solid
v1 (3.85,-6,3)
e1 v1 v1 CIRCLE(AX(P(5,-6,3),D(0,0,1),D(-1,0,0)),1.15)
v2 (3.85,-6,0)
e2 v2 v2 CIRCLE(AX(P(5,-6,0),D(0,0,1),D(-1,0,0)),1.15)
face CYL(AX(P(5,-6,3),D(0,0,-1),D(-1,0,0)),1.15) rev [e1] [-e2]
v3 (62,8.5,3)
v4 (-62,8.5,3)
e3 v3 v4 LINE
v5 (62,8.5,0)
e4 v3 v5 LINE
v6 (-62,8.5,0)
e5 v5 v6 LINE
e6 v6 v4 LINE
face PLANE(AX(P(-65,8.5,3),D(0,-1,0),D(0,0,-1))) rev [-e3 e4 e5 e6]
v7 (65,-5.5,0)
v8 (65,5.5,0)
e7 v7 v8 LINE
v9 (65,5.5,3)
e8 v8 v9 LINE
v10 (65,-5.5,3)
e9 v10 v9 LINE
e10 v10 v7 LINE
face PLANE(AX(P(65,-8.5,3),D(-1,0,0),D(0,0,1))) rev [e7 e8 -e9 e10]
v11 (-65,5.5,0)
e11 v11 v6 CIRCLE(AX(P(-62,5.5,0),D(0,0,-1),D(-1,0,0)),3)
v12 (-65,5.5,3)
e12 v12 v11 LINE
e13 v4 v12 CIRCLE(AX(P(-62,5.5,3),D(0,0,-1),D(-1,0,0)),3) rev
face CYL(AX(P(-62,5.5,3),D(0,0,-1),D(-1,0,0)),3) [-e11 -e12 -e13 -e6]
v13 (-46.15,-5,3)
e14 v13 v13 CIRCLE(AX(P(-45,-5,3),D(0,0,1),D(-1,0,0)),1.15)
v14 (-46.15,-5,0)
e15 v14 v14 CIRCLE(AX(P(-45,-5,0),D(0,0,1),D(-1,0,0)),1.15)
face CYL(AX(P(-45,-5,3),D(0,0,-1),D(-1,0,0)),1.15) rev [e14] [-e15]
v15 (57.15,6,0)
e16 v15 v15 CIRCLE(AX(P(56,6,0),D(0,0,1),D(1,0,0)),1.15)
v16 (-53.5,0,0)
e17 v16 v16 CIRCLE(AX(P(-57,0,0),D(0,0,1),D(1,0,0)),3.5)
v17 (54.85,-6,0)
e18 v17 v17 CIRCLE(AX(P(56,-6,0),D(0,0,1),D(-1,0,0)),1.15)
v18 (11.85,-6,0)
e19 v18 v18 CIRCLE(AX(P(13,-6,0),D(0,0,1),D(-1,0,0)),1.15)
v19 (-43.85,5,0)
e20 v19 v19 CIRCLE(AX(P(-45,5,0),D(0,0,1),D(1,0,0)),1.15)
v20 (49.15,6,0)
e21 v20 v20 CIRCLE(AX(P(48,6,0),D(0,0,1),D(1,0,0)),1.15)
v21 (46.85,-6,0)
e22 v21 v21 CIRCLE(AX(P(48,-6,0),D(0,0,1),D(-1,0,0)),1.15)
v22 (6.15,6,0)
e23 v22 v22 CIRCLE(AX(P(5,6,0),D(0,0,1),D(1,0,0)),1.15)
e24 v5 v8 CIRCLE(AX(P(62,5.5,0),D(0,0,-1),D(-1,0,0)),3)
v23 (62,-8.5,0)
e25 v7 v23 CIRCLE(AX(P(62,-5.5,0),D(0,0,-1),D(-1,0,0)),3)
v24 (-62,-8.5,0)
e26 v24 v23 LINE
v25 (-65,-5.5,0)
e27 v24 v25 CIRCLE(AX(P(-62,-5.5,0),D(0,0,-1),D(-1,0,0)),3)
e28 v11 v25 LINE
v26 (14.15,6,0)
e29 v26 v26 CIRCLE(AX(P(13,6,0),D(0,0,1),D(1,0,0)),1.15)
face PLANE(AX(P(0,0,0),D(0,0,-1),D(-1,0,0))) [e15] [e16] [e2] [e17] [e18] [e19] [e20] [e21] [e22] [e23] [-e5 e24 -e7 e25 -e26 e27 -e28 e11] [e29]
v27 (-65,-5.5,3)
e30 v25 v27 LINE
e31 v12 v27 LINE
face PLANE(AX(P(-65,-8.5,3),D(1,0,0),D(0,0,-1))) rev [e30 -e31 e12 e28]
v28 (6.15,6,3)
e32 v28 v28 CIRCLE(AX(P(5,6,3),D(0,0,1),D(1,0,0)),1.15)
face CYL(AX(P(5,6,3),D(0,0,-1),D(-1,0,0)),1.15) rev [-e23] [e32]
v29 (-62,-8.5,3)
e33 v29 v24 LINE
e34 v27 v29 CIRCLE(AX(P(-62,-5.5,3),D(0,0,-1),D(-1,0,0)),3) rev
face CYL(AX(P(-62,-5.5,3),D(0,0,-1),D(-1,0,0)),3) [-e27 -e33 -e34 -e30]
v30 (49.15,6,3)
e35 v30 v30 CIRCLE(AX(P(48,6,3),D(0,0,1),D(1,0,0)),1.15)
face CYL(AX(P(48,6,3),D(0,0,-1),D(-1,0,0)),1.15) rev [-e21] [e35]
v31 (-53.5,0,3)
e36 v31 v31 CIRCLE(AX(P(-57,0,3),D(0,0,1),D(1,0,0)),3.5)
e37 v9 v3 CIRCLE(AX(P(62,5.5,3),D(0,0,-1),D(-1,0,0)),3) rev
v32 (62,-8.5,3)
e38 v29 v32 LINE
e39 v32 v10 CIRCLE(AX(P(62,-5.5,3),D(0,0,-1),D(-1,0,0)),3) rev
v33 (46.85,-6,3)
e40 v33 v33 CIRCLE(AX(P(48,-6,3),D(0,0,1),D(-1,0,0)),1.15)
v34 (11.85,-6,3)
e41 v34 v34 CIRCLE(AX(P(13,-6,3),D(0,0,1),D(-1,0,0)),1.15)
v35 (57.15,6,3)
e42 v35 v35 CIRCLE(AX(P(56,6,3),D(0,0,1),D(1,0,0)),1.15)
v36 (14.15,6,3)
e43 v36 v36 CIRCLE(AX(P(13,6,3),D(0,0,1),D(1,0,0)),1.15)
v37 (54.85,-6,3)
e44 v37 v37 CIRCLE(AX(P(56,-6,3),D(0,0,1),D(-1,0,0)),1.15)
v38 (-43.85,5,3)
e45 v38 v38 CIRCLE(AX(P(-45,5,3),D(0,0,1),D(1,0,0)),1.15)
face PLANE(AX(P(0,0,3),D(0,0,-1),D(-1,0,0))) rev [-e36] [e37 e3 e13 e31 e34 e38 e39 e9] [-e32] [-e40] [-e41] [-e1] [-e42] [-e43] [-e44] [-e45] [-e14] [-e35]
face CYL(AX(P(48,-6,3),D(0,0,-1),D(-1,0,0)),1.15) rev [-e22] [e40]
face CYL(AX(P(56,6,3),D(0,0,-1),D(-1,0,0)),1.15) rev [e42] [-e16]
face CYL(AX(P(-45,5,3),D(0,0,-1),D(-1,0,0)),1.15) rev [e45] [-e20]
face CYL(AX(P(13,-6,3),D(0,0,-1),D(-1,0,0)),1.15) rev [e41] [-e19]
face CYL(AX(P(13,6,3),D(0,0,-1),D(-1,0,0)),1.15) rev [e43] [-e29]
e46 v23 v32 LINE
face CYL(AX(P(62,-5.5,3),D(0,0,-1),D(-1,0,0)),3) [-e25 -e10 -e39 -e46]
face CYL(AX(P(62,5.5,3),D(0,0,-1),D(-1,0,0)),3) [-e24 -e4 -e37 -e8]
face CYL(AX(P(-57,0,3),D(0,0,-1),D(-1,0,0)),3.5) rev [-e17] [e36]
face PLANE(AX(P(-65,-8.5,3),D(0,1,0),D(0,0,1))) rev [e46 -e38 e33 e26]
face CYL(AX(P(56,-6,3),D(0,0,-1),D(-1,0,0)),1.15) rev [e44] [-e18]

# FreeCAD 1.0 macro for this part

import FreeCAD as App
import Part
import Sketcher
from FreeCAD import Vector
Q = App.Units.Quantity


def edges_at(feature, points):
    """Names of the edges that pass closest to the given points."""
    edges = feature.Shape.Edges
    near = lambda p: min(range(len(edges)), key=lambda i: edges[i].distToShape(Part.Vertex(*p))[0])
    return sorted({f"Edge{near(p) + 1}" for p in points})

doc = App.newDocument("Part")
body = doc.addObject("PartDesign::Body", "Body")

# Sketch on XY plane
sketch1 = doc.addObject("Sketcher::SketchObject", "Sketch")
body.addObject(sketch1)
sketch1.AttachmentSupport = (doc.XY_Plane, [""])
sketch1.MapMode = "FlatFace"
sketch1.addGeometry(Part.LineSegment(Vector(-65, 8.5, 0), Vector(-65, -8.5, 0)), False)
sketch1.addGeometry(Part.LineSegment(Vector(-65, -8.5, 0), Vector(65, -8.5, 0)), False)
sketch1.addGeometry(Part.LineSegment(Vector(65, -8.5, 0), Vector(65, 8.5, 0)), False)
sketch1.addGeometry(Part.LineSegment(Vector(65, 8.5, 0), Vector(-65, 8.5, 0)), False)
sketch1.addGeometry(Part.Circle(Vector(-45, -5, 0), Vector(0, 0, 1), 1.1), False)
sketch1.addGeometry(Part.Circle(Vector(-57, 0, 0), Vector(0, 0, 1), 3.5), False)
sketch1.addGeometry(Part.Circle(Vector(5, -6, 0), Vector(0, 0, 1), 1.1), False)
sketch1.addGeometry(Part.Circle(Vector(13, -6, 0), Vector(0, 0, 1), 1.1), False)
sketch1.addGeometry(Part.Circle(Vector(48, -6, 0), Vector(0, 0, 1), 1.1), False)
sketch1.addGeometry(Part.Circle(Vector(56, -6, 0), Vector(0, 0, 1), 1.1), False)
sketch1.addGeometry(Part.Circle(Vector(-45, 5, 0), Vector(0, 0, 1), 1.1), False)
sketch1.addGeometry(Part.Circle(Vector(5, 6, 0), Vector(0, 0, 1), 1.1), False)
sketch1.addGeometry(Part.Circle(Vector(13, 6, 0), Vector(0, 0, 1), 1.1), False)
sketch1.addGeometry(Part.Circle(Vector(48, 6, 0), Vector(0, 0, 1), 1.1), False)
sketch1.addGeometry(Part.Circle(Vector(56, 6, 0), Vector(0, 0, 1), 1.1), False)
sketch1.addConstraint(Sketcher.Constraint("Coincident", 0, 2, 1, 1))
sketch1.addConstraint(Sketcher.Constraint("Coincident", 1, 2, 2, 1))
sketch1.addConstraint(Sketcher.Constraint("Coincident", 2, 2, 3, 1))
sketch1.addConstraint(Sketcher.Constraint("Coincident", 3, 2, 0, 1))
sketch1.addConstraint(Sketcher.Constraint("Vertical", 0))
sketch1.addConstraint(Sketcher.Constraint("Horizontal", 1))
sketch1.addConstraint(Sketcher.Constraint("Vertical", 2))
sketch1.addConstraint(Sketcher.Constraint("Horizontal", 3))
sketch1.addConstraint(Sketcher.Constraint("Equal", 4, 6))
sketch1.addConstraint(Sketcher.Constraint("Equal", 6, 7))
sketch1.addConstraint(Sketcher.Constraint("Equal", 7, 8))
sketch1.addConstraint(Sketcher.Constraint("Equal", 8, 9))
sketch1.addConstraint(Sketcher.Constraint("Equal", 9, 10))
sketch1.addConstraint(Sketcher.Constraint("Equal", 10, 11))
sketch1.addConstraint(Sketcher.Constraint("Equal", 11, 12))
sketch1.addConstraint(Sketcher.Constraint("Equal", 12, 13))
sketch1.addConstraint(Sketcher.Constraint("Equal", 13, 14))
sketch1.addConstraint(Sketcher.Constraint("Symmetric", 0, 2, 2, 2, -1, 1))
sketch1.addConstraint(Sketcher.Constraint("Symmetric", 4, 3, 10, 3, -1))
sketch1.addConstraint(Sketcher.Constraint("Symmetric", 6, 3, 11, 3, -1))
sketch1.addConstraint(Sketcher.Constraint("Symmetric", 7, 3, 12, 3, -1))
sketch1.addConstraint(Sketcher.Constraint("Symmetric", 8, 3, 13, 3, -1))
sketch1.addConstraint(Sketcher.Constraint("Symmetric", 9, 3, 14, 3, -1))
sketch1.addConstraint(Sketcher.Constraint("PointOnObject", 5, 3, -1))
sketch1.addConstraint(Sketcher.Constraint("Horizontal", 6, 3, 7, 3))
sketch1.addConstraint(Sketcher.Constraint("Horizontal", 7, 3, 8, 3))
sketch1.addConstraint(Sketcher.Constraint("Horizontal", 8, 3, 9, 3))
sketch1.addConstraint(Sketcher.Constraint("Diameter", 5, Q("7 mm")))
sketch1.addConstraint(Sketcher.Constraint("Diameter", 4, Q("2.3 mm")))
sketch1.addConstraint(Sketcher.Constraint("DistanceX", 1, 1, 1, 2, Q("130 mm")))
sketch1.addConstraint(Sketcher.Constraint("DistanceY", 0, 2, 0, 1, Q("17 mm")))
sketch1.addConstraint(Sketcher.Constraint("DistanceX", 4, 3, -1, 1, Q("45 mm")))
sketch1.addConstraint(Sketcher.Constraint("DistanceY", 4, 3, -1, 1, Q("5 mm")))
sketch1.addConstraint(Sketcher.Constraint("DistanceX", 5, 3, -1, 1, Q("57 mm")))
sketch1.addConstraint(Sketcher.Constraint("DistanceX", -1, 1, 6, 3, Q("5 mm")))
sketch1.addConstraint(Sketcher.Constraint("DistanceY", 6, 3, -1, 1, Q("6 mm")))
sketch1.addConstraint(Sketcher.Constraint("DistanceX", -1, 1, 7, 3, Q("13 mm")))
sketch1.addConstraint(Sketcher.Constraint("DistanceX", -1, 1, 8, 3, Q("48 mm")))
sketch1.addConstraint(Sketcher.Constraint("DistanceX", -1, 1, 9, 3, Q("56 mm")))
pad1 = doc.addObject("PartDesign::Pad", "Pad")
body.addObject(pad1)
pad1.Profile = sketch1
pad1.Length = 3
doc.recompute()

fillet = doc.addObject("PartDesign::Fillet", "Fillet")
body.addObject(fillet)
fillet.Base = (pad1, edges_at(pad1, [
    (65, -8.5, 1.5),
    (-65, -8.5, 1.5),
    (-65, 8.5, 1.5),
    (65, 8.5, 1.5),
]))
fillet.Radius = 3

doc.recompute()
